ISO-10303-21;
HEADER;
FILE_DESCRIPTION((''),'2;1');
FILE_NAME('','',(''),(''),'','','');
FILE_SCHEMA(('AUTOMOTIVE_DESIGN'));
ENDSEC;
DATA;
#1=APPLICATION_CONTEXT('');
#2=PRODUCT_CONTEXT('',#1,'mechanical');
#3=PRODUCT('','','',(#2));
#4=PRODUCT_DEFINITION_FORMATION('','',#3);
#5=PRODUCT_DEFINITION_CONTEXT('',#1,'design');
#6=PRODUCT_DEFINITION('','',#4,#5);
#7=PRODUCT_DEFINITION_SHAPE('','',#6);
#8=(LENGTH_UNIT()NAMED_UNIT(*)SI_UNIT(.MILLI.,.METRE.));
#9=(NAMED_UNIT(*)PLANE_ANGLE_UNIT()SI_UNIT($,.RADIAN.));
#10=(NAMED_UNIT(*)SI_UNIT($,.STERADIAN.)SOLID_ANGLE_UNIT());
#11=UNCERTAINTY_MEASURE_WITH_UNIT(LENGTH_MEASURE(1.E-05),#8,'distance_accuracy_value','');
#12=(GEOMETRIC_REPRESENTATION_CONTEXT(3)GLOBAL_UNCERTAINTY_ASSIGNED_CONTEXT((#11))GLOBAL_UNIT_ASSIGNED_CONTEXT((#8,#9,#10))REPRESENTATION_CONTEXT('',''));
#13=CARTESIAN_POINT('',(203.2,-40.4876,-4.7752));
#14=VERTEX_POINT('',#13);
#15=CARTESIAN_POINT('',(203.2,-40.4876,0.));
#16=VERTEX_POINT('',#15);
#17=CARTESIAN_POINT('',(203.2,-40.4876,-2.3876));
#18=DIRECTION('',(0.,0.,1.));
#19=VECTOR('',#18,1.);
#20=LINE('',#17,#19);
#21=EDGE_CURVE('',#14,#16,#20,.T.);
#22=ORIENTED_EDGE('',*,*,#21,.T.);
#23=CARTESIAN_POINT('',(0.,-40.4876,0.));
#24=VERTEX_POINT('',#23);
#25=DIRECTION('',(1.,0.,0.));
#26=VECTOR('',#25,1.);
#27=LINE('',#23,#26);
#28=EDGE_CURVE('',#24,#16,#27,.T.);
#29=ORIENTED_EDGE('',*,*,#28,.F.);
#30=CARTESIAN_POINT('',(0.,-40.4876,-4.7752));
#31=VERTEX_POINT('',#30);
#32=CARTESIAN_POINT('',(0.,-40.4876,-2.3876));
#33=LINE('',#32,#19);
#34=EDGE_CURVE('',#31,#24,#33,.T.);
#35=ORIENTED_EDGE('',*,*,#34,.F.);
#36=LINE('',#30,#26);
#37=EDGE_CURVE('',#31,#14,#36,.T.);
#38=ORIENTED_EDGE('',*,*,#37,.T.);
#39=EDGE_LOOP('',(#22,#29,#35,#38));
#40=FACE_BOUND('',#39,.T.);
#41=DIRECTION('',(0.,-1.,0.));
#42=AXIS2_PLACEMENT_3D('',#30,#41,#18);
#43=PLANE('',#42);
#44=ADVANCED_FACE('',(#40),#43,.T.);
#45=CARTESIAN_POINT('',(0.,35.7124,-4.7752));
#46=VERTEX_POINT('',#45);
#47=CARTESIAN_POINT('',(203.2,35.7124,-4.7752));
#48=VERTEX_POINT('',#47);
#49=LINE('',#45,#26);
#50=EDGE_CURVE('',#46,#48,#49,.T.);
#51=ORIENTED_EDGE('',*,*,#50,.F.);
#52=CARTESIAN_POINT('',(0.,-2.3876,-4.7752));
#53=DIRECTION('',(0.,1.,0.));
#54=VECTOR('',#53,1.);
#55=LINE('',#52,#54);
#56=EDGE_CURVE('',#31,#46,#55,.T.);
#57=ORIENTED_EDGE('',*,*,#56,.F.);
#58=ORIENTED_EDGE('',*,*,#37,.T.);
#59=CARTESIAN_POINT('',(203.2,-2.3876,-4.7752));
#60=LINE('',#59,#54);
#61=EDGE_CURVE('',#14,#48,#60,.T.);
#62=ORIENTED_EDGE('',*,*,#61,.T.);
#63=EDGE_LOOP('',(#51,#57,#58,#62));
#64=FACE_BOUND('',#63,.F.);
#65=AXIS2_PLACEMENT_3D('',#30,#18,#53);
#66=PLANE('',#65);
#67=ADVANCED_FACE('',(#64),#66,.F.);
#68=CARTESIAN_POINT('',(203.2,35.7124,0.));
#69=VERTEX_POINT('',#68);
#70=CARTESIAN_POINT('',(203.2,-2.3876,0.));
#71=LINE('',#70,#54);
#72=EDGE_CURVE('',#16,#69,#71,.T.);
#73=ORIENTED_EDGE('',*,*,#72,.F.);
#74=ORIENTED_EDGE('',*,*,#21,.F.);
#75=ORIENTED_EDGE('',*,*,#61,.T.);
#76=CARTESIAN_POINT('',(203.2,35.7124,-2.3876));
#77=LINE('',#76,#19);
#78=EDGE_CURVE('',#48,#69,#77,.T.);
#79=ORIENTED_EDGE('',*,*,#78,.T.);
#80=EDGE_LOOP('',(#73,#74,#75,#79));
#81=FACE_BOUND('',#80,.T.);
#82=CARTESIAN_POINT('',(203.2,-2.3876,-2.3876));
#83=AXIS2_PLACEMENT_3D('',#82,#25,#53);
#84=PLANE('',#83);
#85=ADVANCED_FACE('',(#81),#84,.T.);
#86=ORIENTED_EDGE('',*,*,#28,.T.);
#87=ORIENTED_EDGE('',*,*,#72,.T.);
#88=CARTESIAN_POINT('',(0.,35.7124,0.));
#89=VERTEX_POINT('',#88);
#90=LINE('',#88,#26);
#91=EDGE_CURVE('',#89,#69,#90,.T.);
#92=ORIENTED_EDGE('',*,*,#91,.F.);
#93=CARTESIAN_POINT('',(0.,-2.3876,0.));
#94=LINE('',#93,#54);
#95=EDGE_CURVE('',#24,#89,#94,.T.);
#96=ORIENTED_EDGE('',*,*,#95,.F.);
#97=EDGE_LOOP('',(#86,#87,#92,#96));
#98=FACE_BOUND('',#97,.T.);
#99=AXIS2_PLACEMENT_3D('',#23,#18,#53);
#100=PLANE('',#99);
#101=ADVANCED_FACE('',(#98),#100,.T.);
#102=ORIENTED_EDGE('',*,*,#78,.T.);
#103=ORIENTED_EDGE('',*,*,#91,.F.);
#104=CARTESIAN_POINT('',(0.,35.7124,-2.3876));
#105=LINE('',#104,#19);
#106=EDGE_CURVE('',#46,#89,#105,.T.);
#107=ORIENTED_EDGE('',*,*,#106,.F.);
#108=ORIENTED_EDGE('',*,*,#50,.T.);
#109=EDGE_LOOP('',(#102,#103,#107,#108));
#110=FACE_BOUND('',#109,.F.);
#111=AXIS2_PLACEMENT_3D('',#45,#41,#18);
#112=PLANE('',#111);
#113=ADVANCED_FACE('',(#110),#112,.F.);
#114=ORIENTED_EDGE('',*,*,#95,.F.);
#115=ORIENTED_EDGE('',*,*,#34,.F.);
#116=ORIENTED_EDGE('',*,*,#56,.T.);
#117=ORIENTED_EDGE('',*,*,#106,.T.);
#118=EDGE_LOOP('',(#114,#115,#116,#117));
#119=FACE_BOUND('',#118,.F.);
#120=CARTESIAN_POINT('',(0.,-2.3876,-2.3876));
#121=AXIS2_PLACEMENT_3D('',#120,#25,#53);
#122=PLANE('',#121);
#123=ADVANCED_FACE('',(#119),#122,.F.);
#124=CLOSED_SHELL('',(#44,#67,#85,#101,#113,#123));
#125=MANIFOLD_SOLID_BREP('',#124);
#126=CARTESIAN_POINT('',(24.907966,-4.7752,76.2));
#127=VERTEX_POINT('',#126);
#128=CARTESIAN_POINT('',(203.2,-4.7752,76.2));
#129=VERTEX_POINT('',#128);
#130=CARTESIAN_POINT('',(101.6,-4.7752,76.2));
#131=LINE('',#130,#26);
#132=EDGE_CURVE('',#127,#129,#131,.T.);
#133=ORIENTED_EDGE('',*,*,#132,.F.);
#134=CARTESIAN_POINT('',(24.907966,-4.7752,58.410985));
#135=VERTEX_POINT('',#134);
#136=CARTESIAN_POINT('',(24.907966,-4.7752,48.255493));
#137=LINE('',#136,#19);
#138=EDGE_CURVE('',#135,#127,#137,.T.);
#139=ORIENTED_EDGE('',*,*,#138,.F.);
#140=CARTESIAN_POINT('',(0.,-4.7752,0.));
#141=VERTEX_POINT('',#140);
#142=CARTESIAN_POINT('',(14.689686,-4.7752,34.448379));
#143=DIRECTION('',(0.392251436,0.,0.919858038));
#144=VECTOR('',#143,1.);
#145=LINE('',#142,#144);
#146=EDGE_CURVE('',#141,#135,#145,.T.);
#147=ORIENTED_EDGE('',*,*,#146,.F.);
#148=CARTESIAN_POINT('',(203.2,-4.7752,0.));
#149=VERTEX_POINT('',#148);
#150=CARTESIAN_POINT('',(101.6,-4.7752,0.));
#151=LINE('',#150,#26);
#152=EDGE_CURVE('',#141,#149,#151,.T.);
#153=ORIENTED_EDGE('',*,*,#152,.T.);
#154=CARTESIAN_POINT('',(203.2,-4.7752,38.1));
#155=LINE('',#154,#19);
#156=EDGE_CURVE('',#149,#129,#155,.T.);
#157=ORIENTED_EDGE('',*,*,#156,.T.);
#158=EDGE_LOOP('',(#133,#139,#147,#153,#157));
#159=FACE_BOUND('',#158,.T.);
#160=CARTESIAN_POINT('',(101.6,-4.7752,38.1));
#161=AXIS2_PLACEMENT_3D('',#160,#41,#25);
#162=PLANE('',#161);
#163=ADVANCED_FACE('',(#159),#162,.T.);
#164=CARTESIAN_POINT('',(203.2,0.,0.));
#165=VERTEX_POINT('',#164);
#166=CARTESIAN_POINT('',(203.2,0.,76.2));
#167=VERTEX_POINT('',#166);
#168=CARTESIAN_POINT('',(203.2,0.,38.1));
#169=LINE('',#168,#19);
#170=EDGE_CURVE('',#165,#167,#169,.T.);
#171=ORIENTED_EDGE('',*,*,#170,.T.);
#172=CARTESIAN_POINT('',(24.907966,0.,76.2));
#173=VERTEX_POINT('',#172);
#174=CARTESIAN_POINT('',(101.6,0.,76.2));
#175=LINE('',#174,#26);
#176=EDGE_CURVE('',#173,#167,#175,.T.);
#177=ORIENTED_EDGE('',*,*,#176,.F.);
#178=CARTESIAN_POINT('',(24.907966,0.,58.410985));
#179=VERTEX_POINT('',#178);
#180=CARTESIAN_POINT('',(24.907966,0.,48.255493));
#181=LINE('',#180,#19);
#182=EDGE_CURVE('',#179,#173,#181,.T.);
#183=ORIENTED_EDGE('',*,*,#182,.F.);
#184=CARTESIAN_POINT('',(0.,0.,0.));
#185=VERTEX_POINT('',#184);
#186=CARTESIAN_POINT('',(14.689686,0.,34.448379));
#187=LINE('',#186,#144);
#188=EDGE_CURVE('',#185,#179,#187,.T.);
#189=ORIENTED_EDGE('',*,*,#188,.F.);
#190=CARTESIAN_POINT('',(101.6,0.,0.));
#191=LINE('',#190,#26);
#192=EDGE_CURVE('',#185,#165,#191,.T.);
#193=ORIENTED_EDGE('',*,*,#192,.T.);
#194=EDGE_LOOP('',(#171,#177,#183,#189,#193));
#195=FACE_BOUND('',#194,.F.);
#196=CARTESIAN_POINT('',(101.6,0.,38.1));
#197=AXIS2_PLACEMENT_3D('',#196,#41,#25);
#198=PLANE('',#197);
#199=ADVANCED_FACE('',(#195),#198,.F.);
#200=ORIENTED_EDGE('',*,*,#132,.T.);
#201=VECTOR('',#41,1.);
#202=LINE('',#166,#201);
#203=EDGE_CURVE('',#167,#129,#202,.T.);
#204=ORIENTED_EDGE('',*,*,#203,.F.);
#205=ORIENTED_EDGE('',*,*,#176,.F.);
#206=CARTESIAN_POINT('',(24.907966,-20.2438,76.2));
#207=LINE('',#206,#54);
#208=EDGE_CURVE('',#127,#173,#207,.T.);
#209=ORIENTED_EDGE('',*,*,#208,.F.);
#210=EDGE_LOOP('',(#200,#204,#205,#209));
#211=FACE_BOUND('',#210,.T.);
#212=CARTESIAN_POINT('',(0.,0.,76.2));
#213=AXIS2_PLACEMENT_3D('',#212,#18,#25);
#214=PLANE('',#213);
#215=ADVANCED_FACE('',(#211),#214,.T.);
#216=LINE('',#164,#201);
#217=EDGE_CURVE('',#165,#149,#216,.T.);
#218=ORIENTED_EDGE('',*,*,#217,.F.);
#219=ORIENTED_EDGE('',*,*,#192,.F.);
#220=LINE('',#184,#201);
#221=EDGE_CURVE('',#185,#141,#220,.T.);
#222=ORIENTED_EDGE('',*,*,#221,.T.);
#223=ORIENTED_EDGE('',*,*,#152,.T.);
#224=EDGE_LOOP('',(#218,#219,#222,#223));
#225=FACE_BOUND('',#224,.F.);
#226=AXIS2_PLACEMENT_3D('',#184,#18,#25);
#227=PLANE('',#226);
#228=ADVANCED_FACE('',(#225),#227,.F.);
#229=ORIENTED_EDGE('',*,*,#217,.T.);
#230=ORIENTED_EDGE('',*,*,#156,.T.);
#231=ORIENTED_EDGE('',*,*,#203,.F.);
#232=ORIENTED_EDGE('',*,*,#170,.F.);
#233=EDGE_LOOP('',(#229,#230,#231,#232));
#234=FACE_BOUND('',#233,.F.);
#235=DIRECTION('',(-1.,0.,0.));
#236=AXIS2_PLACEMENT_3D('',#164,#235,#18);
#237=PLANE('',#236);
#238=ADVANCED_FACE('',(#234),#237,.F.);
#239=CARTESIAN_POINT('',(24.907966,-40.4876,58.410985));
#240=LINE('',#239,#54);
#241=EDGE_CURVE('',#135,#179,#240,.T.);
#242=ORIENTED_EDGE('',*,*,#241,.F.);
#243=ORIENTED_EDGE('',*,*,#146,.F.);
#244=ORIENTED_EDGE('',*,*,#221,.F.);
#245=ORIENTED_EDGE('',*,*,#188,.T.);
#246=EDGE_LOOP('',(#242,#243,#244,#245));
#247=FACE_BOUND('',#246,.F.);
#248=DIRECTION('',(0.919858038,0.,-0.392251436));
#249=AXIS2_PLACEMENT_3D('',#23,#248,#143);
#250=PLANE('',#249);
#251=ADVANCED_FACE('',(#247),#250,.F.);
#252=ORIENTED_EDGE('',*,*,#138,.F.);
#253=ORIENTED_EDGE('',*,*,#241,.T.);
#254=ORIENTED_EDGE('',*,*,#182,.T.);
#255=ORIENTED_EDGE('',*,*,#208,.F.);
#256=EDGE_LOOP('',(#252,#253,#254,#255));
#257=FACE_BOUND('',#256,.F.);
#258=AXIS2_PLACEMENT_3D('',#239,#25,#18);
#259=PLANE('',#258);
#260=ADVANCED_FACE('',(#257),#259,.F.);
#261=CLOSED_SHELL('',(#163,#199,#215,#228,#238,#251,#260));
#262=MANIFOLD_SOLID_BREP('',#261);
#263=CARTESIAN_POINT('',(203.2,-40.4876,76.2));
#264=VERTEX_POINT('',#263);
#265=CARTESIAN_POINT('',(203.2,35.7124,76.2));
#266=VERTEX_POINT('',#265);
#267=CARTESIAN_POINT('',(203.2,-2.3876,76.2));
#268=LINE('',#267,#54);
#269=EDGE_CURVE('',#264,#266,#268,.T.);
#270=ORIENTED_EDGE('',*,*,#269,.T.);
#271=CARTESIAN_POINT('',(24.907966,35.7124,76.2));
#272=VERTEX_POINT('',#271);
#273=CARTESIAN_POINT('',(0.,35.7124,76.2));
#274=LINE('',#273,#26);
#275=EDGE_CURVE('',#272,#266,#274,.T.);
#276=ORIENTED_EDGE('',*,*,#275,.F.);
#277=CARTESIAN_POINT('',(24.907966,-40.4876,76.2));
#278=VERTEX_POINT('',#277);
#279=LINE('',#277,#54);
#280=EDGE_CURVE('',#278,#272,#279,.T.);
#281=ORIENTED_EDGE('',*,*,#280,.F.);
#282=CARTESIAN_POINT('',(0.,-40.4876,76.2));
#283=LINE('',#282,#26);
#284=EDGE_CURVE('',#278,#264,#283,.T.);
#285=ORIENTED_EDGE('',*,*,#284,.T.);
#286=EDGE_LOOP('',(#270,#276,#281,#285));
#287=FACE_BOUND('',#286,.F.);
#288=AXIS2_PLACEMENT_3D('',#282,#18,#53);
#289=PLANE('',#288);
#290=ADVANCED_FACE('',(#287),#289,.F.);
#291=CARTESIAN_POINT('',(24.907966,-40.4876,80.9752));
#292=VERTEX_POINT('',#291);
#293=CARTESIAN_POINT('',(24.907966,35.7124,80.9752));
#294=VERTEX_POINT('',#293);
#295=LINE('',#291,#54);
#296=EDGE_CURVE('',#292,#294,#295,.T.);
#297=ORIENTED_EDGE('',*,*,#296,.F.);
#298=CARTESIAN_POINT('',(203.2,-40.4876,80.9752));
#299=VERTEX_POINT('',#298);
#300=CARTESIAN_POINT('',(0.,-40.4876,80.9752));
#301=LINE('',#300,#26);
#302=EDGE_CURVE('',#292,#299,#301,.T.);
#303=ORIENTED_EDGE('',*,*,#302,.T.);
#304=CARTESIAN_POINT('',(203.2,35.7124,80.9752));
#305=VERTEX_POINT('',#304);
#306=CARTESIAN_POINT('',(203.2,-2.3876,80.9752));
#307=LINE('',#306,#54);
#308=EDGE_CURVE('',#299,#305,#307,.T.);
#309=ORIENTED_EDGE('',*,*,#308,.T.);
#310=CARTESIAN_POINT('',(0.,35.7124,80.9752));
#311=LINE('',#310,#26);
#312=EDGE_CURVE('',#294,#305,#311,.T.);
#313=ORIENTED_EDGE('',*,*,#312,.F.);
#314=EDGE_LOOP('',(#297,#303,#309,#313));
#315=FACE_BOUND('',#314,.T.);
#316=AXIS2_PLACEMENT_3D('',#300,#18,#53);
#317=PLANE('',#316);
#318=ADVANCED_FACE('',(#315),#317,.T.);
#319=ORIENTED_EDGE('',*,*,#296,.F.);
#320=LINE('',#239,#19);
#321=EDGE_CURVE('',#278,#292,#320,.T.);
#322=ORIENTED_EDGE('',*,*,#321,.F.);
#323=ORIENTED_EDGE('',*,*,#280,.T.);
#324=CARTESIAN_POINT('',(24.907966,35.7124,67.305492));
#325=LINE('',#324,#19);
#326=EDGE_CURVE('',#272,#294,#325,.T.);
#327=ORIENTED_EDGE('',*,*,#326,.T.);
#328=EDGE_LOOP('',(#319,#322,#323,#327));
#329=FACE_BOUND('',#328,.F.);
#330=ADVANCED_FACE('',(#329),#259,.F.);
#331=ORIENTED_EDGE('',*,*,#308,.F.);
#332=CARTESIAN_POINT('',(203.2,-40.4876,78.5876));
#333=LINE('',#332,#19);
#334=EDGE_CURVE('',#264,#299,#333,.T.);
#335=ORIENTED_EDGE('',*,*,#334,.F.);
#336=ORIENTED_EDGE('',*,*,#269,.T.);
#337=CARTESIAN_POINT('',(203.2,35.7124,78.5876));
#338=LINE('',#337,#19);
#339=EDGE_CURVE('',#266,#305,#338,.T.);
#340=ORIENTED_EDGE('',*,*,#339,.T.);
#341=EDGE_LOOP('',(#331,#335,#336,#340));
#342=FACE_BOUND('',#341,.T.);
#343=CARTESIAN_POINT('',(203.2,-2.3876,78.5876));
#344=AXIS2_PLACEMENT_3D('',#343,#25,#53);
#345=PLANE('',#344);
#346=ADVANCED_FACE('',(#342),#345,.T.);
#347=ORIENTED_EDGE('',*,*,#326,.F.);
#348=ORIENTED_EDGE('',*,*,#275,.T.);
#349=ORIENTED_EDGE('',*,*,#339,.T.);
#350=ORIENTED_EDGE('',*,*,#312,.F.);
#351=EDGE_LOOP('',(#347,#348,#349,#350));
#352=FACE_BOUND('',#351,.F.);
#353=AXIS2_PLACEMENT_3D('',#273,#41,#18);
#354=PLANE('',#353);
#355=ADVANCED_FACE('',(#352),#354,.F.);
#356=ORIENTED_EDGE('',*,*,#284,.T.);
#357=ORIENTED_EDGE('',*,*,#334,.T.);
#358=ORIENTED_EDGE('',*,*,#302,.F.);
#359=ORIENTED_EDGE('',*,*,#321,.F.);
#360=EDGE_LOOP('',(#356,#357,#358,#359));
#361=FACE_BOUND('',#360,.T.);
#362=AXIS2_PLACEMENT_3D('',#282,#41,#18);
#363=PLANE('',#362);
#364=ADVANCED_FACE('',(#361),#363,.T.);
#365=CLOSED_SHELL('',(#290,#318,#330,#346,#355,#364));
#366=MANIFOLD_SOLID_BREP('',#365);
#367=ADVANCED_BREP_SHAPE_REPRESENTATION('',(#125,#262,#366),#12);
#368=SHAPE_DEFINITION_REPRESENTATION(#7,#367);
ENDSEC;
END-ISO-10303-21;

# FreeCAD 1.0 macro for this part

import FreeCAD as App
import Part
import Sketcher
Q = App.Units.Quantity


def add_polygon(sketch, points):
    """Adds a closed chain of lines whose ends are joined by coincident constraints."""
    first, n = sketch.GeometryCount, len(points)
    for a, b in zip(points, points[1:] + points[:1]):
        sketch.addGeometry(Part.LineSegment(App.Vector(*a, 0), App.Vector(*b, 0)), False)
    for i in range(n):
        sketch.addConstraint(Sketcher.Constraint("Coincident", first + i, 2, first + (i + 1) % n, 1))

doc = App.newDocument("Part")
params = doc.addObject("Spreadsheet::Sheet", "Params")
for row, (alias, value) in enumerate([
    ("sketch1_width", "8 in"),
    ("sketch1_height", "3 in"),
    ("pad1_length", "0.188 in"),
    ("sketch2_width", "3 in"),
    ("sketch2_height", "0.188 in"),
    ("pad2_length", "8 in"),
    ("sketch3_length", "2.5 in"),
    ("sketch3_height", "3.188 in"),
    ("pad3_length", "3.16 in"),
], start=1):
    params.set(f"A{row}", alias)
    params.set(f"B{row}", "=" + value)
    params.setAlias(f"B{row}", alias)

body = doc.addObject("PartDesign::Body", "Body")

sketch1 = doc.addObject("Sketcher::SketchObject", "Sketch")
body.addObject(sketch1)
sketch1.AttachmentSupport = (doc.XZ_Plane, [""])
sketch1.MapMode = "FlatFace"
add_polygon(sketch1, [(0, 76), (0, 0), (203, 0), (203, 76)])
sketch1.addConstraint(Sketcher.Constraint("Vertical", 0))
sketch1.addConstraint(Sketcher.Constraint("Horizontal", 1))
sketch1.addConstraint(Sketcher.Constraint("Vertical", 2))
sketch1.addConstraint(Sketcher.Constraint("Horizontal", 3))
sketch1.addConstraint(Sketcher.Constraint("Coincident", 0, 2, -1, 1))
sketch1.addConstraint(Sketcher.Constraint("DistanceX", 1, 1, 1, 2, Q("8 in")))
sketch1.addConstraint(Sketcher.Constraint("DistanceY", 0, 2, 0, 1, Q("3 in")))
sketch1.setExpression("Constraints[9]", "Params.sketch1_width")
sketch1.setExpression("Constraints[10]", "Params.sketch1_height")
pad1 = doc.addObject("PartDesign::Pad", "Pad")
body.addObject(pad1)
pad1.Profile = sketch1
pad1.setExpression("Length", "Params.pad1_length")
body2 = doc.addObject("PartDesign::Body", "Body001")
body2.AllowCompound = True

sketch2 = doc.addObject("Sketcher::SketchObject", "Sketch001")
body2.addObject(sketch2)
sketch2.AttachmentSupport = (doc.getObject("YZ_Plane001"), [""])
sketch2.MapMode = "FlatFace"
add_polygon(sketch2, [(-40.5, 81), (-40.5, 76.2), (35.7, 76.2), (35.7, 81)])
add_polygon(sketch2, [(-40.5, 0), (-40.5, -4.8), (35.7, -4.8), (35.7, 0)])
sketch2.addConstraint(Sketcher.Constraint("Vertical", 0))
sketch2.addConstraint(Sketcher.Constraint("Horizontal", 1))
sketch2.addConstraint(Sketcher.Constraint("Vertical", 2))
sketch2.addConstraint(Sketcher.Constraint("Horizontal", 3))
sketch2.addConstraint(Sketcher.Constraint("Vertical", 4))
sketch2.addConstraint(Sketcher.Constraint("Horizontal", 5))
sketch2.addConstraint(Sketcher.Constraint("Vertical", 6))
sketch2.addConstraint(Sketcher.Constraint("Horizontal", 7))
sketch2.addConstraint(Sketcher.Constraint("PointOnObject", 6, 2, -1))
sketch2.addConstraint(Sketcher.Constraint("Vertical", 3, 2, 4, 2))
sketch2.addConstraint(Sketcher.Constraint("Vertical", 2, 2, 5, 2))
sketch2.addConstraint(Sketcher.Constraint("Equal", 2, 4))
sketch2.addConstraint(Sketcher.Constraint("DistanceX", 1, 1, 1, 2, Q("3 in")))
sketch2.addConstraint(Sketcher.Constraint("DistanceY", -1, 1, 0, 2, Q("3 in")))
sketch2.addConstraint(Sketcher.Constraint("DistanceY", 0, 2, 0, 1, Q("0.188 in")))
sketch2.addConstraint(Sketcher.Constraint("DistanceX", 0, 2, -1, 1, Q("1.594 in")))
sketch2.setExpression("Constraints[20]", "Params.sketch2_width")
sketch2.setExpression("Constraints[22]", "Params.sketch2_height")
pad2 = doc.addObject("PartDesign::Pad", "Pad001")
body2.addObject(pad2)
pad2.Profile = sketch2
pad2.setExpression("Length", "Params.pad2_length")
body3 = doc.addObject("PartDesign::Body", "Body002")

sketch3 = doc.addObject("Sketcher::SketchObject", "Sketch002")
body3.addObject(sketch3)
sketch3.AttachmentSupport = (doc.getObject("XZ_Plane002"), [""])
sketch3.MapMode = "FlatFace"
sketch3.AttachmentOffset = App.Placement(App.Vector(0, 0, 1.594 * 25.4), App.Rotation())
add_polygon(sketch3, [(0, 0), (25, 58), (25, 81), (0, 81)])
sketch3.addConstraint(Sketcher.Constraint("Vertical", 1))
sketch3.addConstraint(Sketcher.Constraint("Horizontal", 2))
sketch3.addConstraint(Sketcher.Constraint("Vertical", 3))
sketch3.addConstraint(Sketcher.Constraint("Coincident", 3, 2, -1, 1))
sketch3.addConstraint(Sketcher.Constraint("Distance", 0, Q("2.5 in")))
sketch3.addConstraint(Sketcher.Constraint("DistanceY", 3, 2, 3, 1, Q("3.188 in")))
sketch3.addConstraint(Sketcher.Constraint("DistanceX", 2, 2, 2, 1, Q("24.907966 mm")))
sketch3.setExpression("Constraints[8]", "Params.sketch3_length")
sketch3.setExpression("Constraints[9]", "Params.sketch3_height")
pad3 = doc.addObject("PartDesign::Pad", "Pad002")
body3.addObject(pad3)
pad3.Profile = sketch3
pad3.setExpression("Length", "Params.pad3_length")
pad3.Reversed = True
doc.recompute()

body4 = doc.addObject("PartDesign::Body", "Body003")
body4.BaseFeature = body3
boolean = doc.addObject("PartDesign::Boolean", "Boolean")
body.addObject(boolean)
boolean.Type = "Cut"
boolean.addObjects([body4])
doc.recompute()
body2.AllowCompound = True
doc.recompute()

boolean2 = doc.addObject("PartDesign::Boolean", "Boolean001")
body2.addObject(boolean2)
boolean2.Type = "Cut"
boolean2.addObjects([body3])

doc.recompute()
